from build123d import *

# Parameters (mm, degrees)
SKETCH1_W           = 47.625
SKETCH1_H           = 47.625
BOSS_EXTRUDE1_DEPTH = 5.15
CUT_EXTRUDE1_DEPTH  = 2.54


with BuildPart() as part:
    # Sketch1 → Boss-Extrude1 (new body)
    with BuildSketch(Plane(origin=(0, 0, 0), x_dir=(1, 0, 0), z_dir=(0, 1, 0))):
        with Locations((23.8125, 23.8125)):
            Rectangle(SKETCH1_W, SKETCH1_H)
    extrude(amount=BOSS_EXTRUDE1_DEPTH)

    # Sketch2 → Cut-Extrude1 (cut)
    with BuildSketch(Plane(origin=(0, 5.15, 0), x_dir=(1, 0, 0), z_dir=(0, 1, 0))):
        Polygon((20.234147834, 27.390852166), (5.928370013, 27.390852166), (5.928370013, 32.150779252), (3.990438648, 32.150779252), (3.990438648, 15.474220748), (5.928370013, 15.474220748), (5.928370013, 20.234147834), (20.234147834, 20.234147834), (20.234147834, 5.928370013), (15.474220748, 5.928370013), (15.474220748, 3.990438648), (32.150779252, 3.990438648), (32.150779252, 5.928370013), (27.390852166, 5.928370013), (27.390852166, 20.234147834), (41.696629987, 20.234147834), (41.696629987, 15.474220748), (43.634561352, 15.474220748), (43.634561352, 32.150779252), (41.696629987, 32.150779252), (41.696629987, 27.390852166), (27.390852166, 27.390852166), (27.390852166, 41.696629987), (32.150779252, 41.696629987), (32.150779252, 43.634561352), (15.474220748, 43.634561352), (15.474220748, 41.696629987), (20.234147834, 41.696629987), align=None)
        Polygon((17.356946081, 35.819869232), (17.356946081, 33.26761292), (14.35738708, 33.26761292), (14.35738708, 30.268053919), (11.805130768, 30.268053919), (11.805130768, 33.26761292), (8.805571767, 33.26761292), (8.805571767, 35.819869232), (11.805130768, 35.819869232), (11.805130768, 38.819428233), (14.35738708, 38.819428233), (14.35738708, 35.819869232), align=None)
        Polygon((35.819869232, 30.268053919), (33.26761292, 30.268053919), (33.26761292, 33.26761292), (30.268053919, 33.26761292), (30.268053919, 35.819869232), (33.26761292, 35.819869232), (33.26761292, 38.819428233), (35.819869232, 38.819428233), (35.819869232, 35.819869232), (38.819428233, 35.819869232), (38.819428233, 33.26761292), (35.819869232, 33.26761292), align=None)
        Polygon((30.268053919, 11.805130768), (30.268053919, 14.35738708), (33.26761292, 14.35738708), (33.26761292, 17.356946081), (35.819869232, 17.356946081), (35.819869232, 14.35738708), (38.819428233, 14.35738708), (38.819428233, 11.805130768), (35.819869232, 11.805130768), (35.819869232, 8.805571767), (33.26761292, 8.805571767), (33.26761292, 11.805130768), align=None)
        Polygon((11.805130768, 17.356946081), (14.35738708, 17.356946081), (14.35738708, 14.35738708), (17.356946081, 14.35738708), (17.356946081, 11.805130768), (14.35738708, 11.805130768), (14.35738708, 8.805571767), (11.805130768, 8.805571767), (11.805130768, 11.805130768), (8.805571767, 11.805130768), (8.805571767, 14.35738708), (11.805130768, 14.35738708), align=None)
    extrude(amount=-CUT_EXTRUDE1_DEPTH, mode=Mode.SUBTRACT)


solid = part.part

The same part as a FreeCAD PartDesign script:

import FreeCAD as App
import Part
import Sketcher

V = App.Vector
Q = App.Units.Quantity


def add_polygon(sketch, points):
    """Adds a closed chain of lines whose ends are joined by coincident constraints."""
    first, n = sketch.GeometryCount, len(points)
    for a, b in zip(points, points[1:] + points[:1]):
        sketch.addGeometry(Part.LineSegment(App.Vector(*a, 0), App.Vector(*b, 0)), False)
    for i in range(n):
        sketch.addConstraint(Sketcher.Constraint("Coincident", first + i, 2, first + (i + 1) % n, 1))

doc = App.newDocument("Part")
params = doc.addObject("Spreadsheet::Sheet", "Params")
for row, (alias, value) in enumerate([
    ("sketch1_width", "1.875 in"),
    ("pad1_length", "5.15 mm"),
    ("pocket1_length", "0.1 in"),
], start=1):
    params.set(f"A{row}", alias)
    params.set(f"B{row}", "=" + value)
    params.setAlias(f"B{row}", alias)

body = doc.addObject("PartDesign::Body", "Body")

sketch1 = body.newObject("Sketcher::SketchObject", "Sketch")
sketch1.AttachmentSupport = (doc.getObject("XZ_Plane"), [""])
sketch1.MapMode = "FlatFace"
add_polygon(sketch1, [(0, -48), (0, 0), (48, 0), (48, -48)])
sketch1.addConstraint(Sketcher.Constraint("Vertical", 0))
sketch1.addConstraint(Sketcher.Constraint("Horizontal", 1))
sketch1.addConstraint(Sketcher.Constraint("Vertical", 2))
sketch1.addConstraint(Sketcher.Constraint("Horizontal", 3))
sketch1.addConstraint(Sketcher.Constraint("Coincident", 0, 2, -1, 1))
sketch1.addConstraint(Sketcher.Constraint("Equal", 3, 0))
sketch1.addConstraint(Sketcher.Constraint("DistanceX", 1, 1, 1, 2, Q("1.875 in")))
sketch1.setExpression("Constraints[10]", "Params.sketch1_width")
pad1 = body.newObject("PartDesign::Pad", "Pad")
pad1.Profile = sketch1
pad1.setExpression("Length", "Params.pad1_length")
pad1.Reversed = True

sketch2 = body.newObject("Sketcher::SketchObject", "Sketch001")
sketch2.AttachmentSupport = (doc.getObject("XZ_Plane"), [""])
sketch2.MapMode = "FlatFace"
sketch2.AttachmentOffset = App.Placement(V(0, 0, -5.15), App.Rotation())
add_polygon(sketch2, [(20.2, -27.4), (5.9, -27.4), (5.9, -32.2), (4, -32.2), (4, -15.5), (5.9, -15.5), (5.9, -20.2), (20.2, -20.2), (20.2, -5.9), (15.5, -5.9), (15.5, -4), (32.2, -4), (32.2, -5.9), (27.4, -5.9), (27.4, -20.2), (41.7, -20.2), (41.7, -15.5), (43.6, -15.5), (43.6, -32.2), (41.7, -32.2), (41.7, -27.4), (27.4, -27.4), (27.4, -41.7), (32.2, -41.7), (32.2, -43.6), (15.5, -43.6), (15.5, -41.7), (20.2, -41.7)])
add_polygon(sketch2, [(17.4, -33.3), (17.4, -35.8), (14.4, -35.8), (14.4, -38.8), (11.8, -38.8), (11.8, -35.8), (8.8, -35.8), (8.8, -33.3), (11.8, -33.3), (11.8, -30.3), (14.4, -30.3), (14.4, -33.3)])
add_polygon(sketch2, [(33.3, -30.3), (35.8, -30.3), (35.8, -33.3), (38.8, -33.3), (38.8, -35.8), (35.8, -35.8), (35.8, -38.8), (33.3, -38.8), (33.3, -35.8), (30.3, -35.8), (30.3, -33.3), (33.3, -33.3)])
add_polygon(sketch2, [(30.3, -14.4), (30.3, -11.8), (33.3, -11.8), (33.3, -8.8), (35.8, -8.8), (35.8, -11.8), (38.8, -11.8), (38.8, -14.4), (35.8, -14.4), (35.8, -17.4), (33.3, -17.4), (33.3, -14.4)])
add_polygon(sketch2, [(14.4, -17.4), (11.8, -17.4), (11.8, -14.4), (8.8, -14.4), (8.8, -11.8), (11.8, -11.8), (11.8, -8.8), (14.4, -8.8), (14.4, -11.8), (17.4, -11.8), (17.4, -14.4), (14.4, -14.4)])
sketch2.addConstraint(Sketcher.Constraint("Horizontal", 0))
sketch2.addConstraint(Sketcher.Constraint("Vertical", 1))
sketch2.addConstraint(Sketcher.Constraint("Horizontal", 2))
sketch2.addConstraint(Sketcher.Constraint("Vertical", 3))
sketch2.addConstraint(Sketcher.Constraint("Horizontal", 4))
sketch2.addConstraint(Sketcher.Constraint("Vertical", 5))
sketch2.addConstraint(Sketcher.Constraint("Horizontal", 6))
sketch2.addConstraint(Sketcher.Constraint("Vertical", 7))
sketch2.addConstraint(Sketcher.Constraint("Horizontal", 8))
sketch2.addConstraint(Sketcher.Constraint("Vertical", 9))
sketch2.addConstraint(Sketcher.Constraint("Horizontal", 10))
sketch2.addConstraint(Sketcher.Constraint("Vertical", 11))
sketch2.addConstraint(Sketcher.Constraint("Horizontal", 12))
sketch2.addConstraint(Sketcher.Constraint("Vertical", 13))
sketch2.addConstraint(Sketcher.Constraint("Horizontal", 14))
sketch2.addConstraint(Sketcher.Constraint("Vertical", 15))
sketch2.addConstraint(Sketcher.Constraint("Horizontal", 16))
sketch2.addConstraint(Sketcher.Constraint("Vertical", 17))
sketch2.addConstraint(Sketcher.Constraint("Horizontal", 18))
sketch2.addConstraint(Sketcher.Constraint("Vertical", 19))
sketch2.addConstraint(Sketcher.Constraint("Horizontal", 20))
sketch2.addConstraint(Sketcher.Constraint("Vertical", 21))
sketch2.addConstraint(Sketcher.Constraint("Horizontal", 22))
sketch2.addConstraint(Sketcher.Constraint("Vertical", 23))
sketch2.addConstraint(Sketcher.Constraint("Horizontal", 24))
sketch2.addConstraint(Sketcher.Constraint("Vertical", 25))
sketch2.addConstraint(Sketcher.Constraint("Horizontal", 26))
sketch2.addConstraint(Sketcher.Constraint("Vertical", 27))
sketch2.addConstraint(Sketcher.Constraint("Vertical", 28))
sketch2.addConstraint(Sketcher.Constraint("Horizontal", 29))
sketch2.addConstraint(Sketcher.Constraint("Vertical", 30))
sketch2.addConstraint(Sketcher.Constraint("Horizontal", 31))
sketch2.addConstraint(Sketcher.Constraint("Vertical", 32))
sketch2.addConstraint(Sketcher.Constraint("Horizontal", 33))
sketch2.addConstraint(Sketcher.Constraint("Vertical", 34))
sketch2.addConstraint(Sketcher.Constraint("Horizontal", 35))
sketch2.addConstraint(Sketcher.Constraint("Vertical", 36))
sketch2.addConstraint(Sketcher.Constraint("Horizontal", 37))
sketch2.addConstraint(Sketcher.Constraint("Vertical", 38))
sketch2.addConstraint(Sketcher.Constraint("Horizontal", 39))
sketch2.addConstraint(Sketcher.Constraint("Horizontal", 40))
sketch2.addConstraint(Sketcher.Constraint("Vertical", 41))
sketch2.addConstraint(Sketcher.Constraint("Horizontal", 42))
sketch2.addConstraint(Sketcher.Constraint("Vertical", 43))
sketch2.addConstraint(Sketcher.Constraint("Horizontal", 44))
sketch2.addConstraint(Sketcher.Constraint("Vertical", 45))
sketch2.addConstraint(Sketcher.Constraint("Horizontal", 46))
sketch2.addConstraint(Sketcher.Constraint("Vertical", 47))
sketch2.addConstraint(Sketcher.Constraint("Horizontal", 48))
sketch2.addConstraint(Sketcher.Constraint("Vertical", 49))
sketch2.addConstraint(Sketcher.Constraint("Horizontal", 50))
sketch2.addConstraint(Sketcher.Constraint("Vertical", 51))
sketch2.addConstraint(Sketcher.Constraint("Vertical", 52))
sketch2.addConstraint(Sketcher.Constraint("Horizontal", 53))
sketch2.addConstraint(Sketcher.Constraint("Vertical", 54))
sketch2.addConstraint(Sketcher.Constraint("Horizontal", 55))
sketch2.addConstraint(Sketcher.Constraint("Vertical", 56))
sketch2.addConstraint(Sketcher.Constraint("Horizontal", 57))
sketch2.addConstraint(Sketcher.Constraint("Vertical", 58))
sketch2.addConstraint(Sketcher.Constraint("Horizontal", 59))
sketch2.addConstraint(Sketcher.Constraint("Vertical", 60))
sketch2.addConstraint(Sketcher.Constraint("Horizontal", 61))
sketch2.addConstraint(Sketcher.Constraint("Vertical", 62))
sketch2.addConstraint(Sketcher.Constraint("Horizontal", 63))
sketch2.addConstraint(Sketcher.Constraint("Horizontal", 64))
sketch2.addConstraint(Sketcher.Constraint("Vertical", 65))
sketch2.addConstraint(Sketcher.Constraint("Horizontal", 66))
sketch2.addConstraint(Sketcher.Constraint("Vertical", 67))
sketch2.addConstraint(Sketcher.Constraint("Horizontal", 68))
sketch2.addConstraint(Sketcher.Constraint("Vertical", 69))
sketch2.addConstraint(Sketcher.Constraint("Horizontal", 70))
sketch2.addConstraint(Sketcher.Constraint("Vertical", 71))
sketch2.addConstraint(Sketcher.Constraint("Horizontal", 72))
sketch2.addConstraint(Sketcher.Constraint("Vertical", 73))
sketch2.addConstraint(Sketcher.Constraint("Horizontal", 74))
sketch2.addConstraint(Sketcher.Constraint("Vertical", 75))
sketch2.addConstraint(Sketcher.Constraint("Horizontal", 8, 2, 11, 2))
sketch2.addConstraint(Sketcher.Constraint("Horizontal", 6, 2, 13, 2))
sketch2.addConstraint(Sketcher.Constraint("Horizontal", 4, 2, 15, 2))
sketch2.addConstraint(Sketcher.Constraint("Horizontal", 2, 2, 17, 2))
sketch2.addConstraint(Sketcher.Constraint("Horizontal", 0, 2, 19, 2))
sketch2.addConstraint(Sketcher.Constraint("Horizontal", 22, 2, 25, 2))
sketch2.addConstraint(Sketcher.Constraint("Horizontal", 29, 2, 32, 2))
sketch2.addConstraint(Sketcher.Constraint("Horizontal", 35, 2, 38, 2))
sketch2.addConstraint(Sketcher.Constraint("Horizontal", 37, 2, 40, 2))
sketch2.addConstraint(Sketcher.Constraint("Horizontal", 39, 2, 41, 2))
sketch2.addConstraint(Sketcher.Constraint("Horizontal", 33, 2, 43, 2))
sketch2.addConstraint(Sketcher.Constraint("Horizontal", 31, 2, 45, 2))
sketch2.addConstraint(Sketcher.Constraint("Horizontal", 44, 2, 47, 2))
sketch2.addConstraint(Sketcher.Constraint("Horizontal", 42, 2, 49, 2))
sketch2.addConstraint(Sketcher.Constraint("Horizontal", 53, 2, 56, 2))
sketch2.addConstraint(Sketcher.Constraint("Horizontal", 59, 2, 62, 2))
sketch2.addConstraint(Sketcher.Constraint("Horizontal", 61, 2, 64, 2))
sketch2.addConstraint(Sketcher.Constraint("Horizontal", 63, 2, 65, 2))
sketch2.addConstraint(Sketcher.Constraint("Horizontal", 57, 2, 67, 2))
sketch2.addConstraint(Sketcher.Constraint("Horizontal", 55, 2, 69, 2))
sketch2.addConstraint(Sketcher.Constraint("Horizontal", 68, 2, 71, 2))
sketch2.addConstraint(Sketcher.Constraint("Horizontal", 66, 2, 73, 2))
sketch2.addConstraint(Sketcher.Constraint("Vertical", 1, 2, 4, 2))
sketch2.addConstraint(Sketcher.Constraint("Vertical", 15, 2, 18, 2))
sketch2.addConstraint(Sketcher.Constraint("Vertical", 13, 2, 20, 2))
sketch2.addConstraint(Sketcher.Constraint("Vertical", 11, 2, 22, 2))
sketch2.addConstraint(Sketcher.Constraint("Vertical", 9, 2, 24, 2))
sketch2.addConstraint(Sketcher.Constraint("Vertical", 7, 2, 26, 2))
sketch2.addConstraint(Sketcher.Constraint("Vertical", 32, 2, 35, 2))
sketch2.addConstraint(Sketcher.Constraint("Vertical", 30, 2, 37, 2))
sketch2.addConstraint(Sketcher.Constraint("Vertical", 41, 2, 44, 2))
sketch2.addConstraint(Sketcher.Constraint("Vertical", 47, 2, 50, 2))
sketch2.addConstraint(Sketcher.Constraint("Vertical", 49, 2, 52, 2))
sketch2.addConstraint(Sketcher.Constraint("Vertical", 51, 2, 53, 2))
sketch2.addConstraint(Sketcher.Constraint("Vertical", 45, 2, 55, 2))
sketch2.addConstraint(Sketcher.Constraint("Vertical", 43, 2, 57, 2))
sketch2.addConstraint(Sketcher.Constraint("Vertical", 56, 2, 59, 2))
sketch2.addConstraint(Sketcher.Constraint("Vertical", 54, 2, 61, 2))
sketch2.addConstraint(Sketcher.Constraint("Vertical", 36, 2, 64, 2))
sketch2.addConstraint(Sketcher.Constraint("Vertical", 34, 2, 66, 2))
sketch2.addConstraint(Sketcher.Constraint("Vertical", 65, 2, 68, 2))
sketch2.addConstraint(Sketcher.Constraint("Vertical", 38, 2, 70, 2))
sketch2.addConstraint(Sketcher.Constraint("Vertical", 39, 2, 72, 2))
sketch2.addConstraint(Sketcher.Constraint("Vertical", 71, 2, 74, 2))
sketch2.addConstraint(Sketcher.Constraint("Equal", 8, 12))
sketch2.addConstraint(Sketcher.Constraint("Equal", 6, 14))
sketch2.addConstraint(Sketcher.Constraint("Equal", 4, 16))
sketch2.addConstraint(Sketcher.Constraint("Equal", 29, 33))
sketch2.addConstraint(Sketcher.Constraint("Equal", 37, 40))
sketch2.addConstraint(Sketcher.Constraint("Equal", 39, 42))
sketch2.addConstraint(Sketcher.Constraint("Equal", 44, 48))
sketch2.addConstraint(Sketcher.Constraint("Equal", 26, 1))
sketch2.addConstraint(Sketcher.Constraint("Equal", 24, 3))
sketch2.addConstraint(Sketcher.Constraint("Equal", 1, 5))
sketch2.addConstraint(Sketcher.Constraint("Equal", 20, 7))
sketch2.addConstraint(Sketcher.Constraint("Equal", 18, 9))
sketch2.addConstraint(Sketcher.Constraint("Equal", 13, 21))
sketch2.addConstraint(Sketcher.Constraint("Equal", 11, 23))
sketch2.addConstraint(Sketcher.Constraint("Equal", 70, 28))
sketch2.addConstraint(Sketcher.Constraint("Equal", 74, 30))
sketch2.addConstraint(Sketcher.Constraint("Equal", 32, 36))
sketch2.addConstraint(Sketcher.Constraint("Equal", 49, 52))
sketch2.addConstraint(Sketcher.Constraint("Equal", 51, 54))
sketch2.addConstraint(Sketcher.Constraint("Equal", 56, 60))
sketch2.addConstraint(Sketcher.Constraint("DistanceX", 2, 2, 2, 1, 1.937931))
sketch2.addConstraint(Sketcher.Constraint("DistanceX", 10, 1, 10, 2, 16.676559))
sketch2.addConstraint(Sketcher.Constraint("DistanceX", 29, 2, 29, 1, 2.999559))
sketch2.addConstraint(Sketcher.Constraint("DistanceX", 0, 2, 0, 1, 14.305778))
sketch2.addConstraint(Sketcher.Constraint("DistanceX", 8, 2, 8, 1, 4.759927))
sketch2.addConstraint(Sketcher.Constraint("DistanceX", 31, 2, 31, 1, 2.552256))
sketch2.addConstraint(Sketcher.Constraint("DistanceX", -1, 1, 0, 2, 5.92837))
sketch2.addConstraint(Sketcher.Constraint("DistanceY", 1, 2, -1, 1, 32.150779))
sketch2.addConstraint(Sketcher.Constraint("DistanceY", 28, 2, -1, 1, 35.819869))
sketch2.addConstraint(Sketcher.Constraint("DistanceX", -1, 1, 31, 2, 11.805131))
sketch2.addConstraint(Sketcher.Constraint("DistanceX", -1, 1, 40, 2, 35.819869))
sketch2.addConstraint(Sketcher.Constraint("DistanceY", 52, 2, -1, 1, 11.805131))
pocket1 = body.newObject("PartDesign::Pocket", "Pocket")
pocket1.Profile = sketch2
pocket1.setExpression("Length", "Params.pocket1_length")
pocket1.Reversed = True

doc.recompute()
